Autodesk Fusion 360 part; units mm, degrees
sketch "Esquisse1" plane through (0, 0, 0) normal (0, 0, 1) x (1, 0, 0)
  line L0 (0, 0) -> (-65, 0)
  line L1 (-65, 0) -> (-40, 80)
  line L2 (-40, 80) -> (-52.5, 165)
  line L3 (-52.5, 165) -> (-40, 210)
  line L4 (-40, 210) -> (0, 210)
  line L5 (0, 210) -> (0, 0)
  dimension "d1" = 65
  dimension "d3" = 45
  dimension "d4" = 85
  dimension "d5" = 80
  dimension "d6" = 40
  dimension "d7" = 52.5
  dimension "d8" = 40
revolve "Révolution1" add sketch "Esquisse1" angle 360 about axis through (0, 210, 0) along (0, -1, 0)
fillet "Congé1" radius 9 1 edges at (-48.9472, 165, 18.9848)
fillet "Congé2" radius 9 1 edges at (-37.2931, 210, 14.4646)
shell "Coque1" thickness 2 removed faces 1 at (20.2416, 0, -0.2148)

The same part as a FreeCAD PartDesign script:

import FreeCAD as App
import Part
import Sketcher

V = App.Vector


def edges_at(feature, points):
    """Names of the edges that pass closest to the given points."""
    edges = feature.Shape.Edges
    near = lambda p: min(range(len(edges)), key=lambda i: edges[i].distToShape(Part.Vertex(*p))[0])
    return sorted({f"Edge{near(p) + 1}" for p in points})


def faces_at(feature, points):
    """Names of the faces that lie closest to the given points."""
    faces = feature.Shape.Faces
    near = lambda p: min(range(len(faces)), key=lambda i: faces[i].distToShape(Part.Vertex(*p))[0])
    return sorted({f"Face{near(p) + 1}" for p in points})

doc = App.newDocument("Part")
body = doc.addObject("PartDesign::Body", "Body")

sketch1 = body.newObject("Sketcher::SketchObject", "Sketch")
sketch1.AttachmentSupport = (doc.getObject("XY_Plane"), [""])
sketch1.MapMode = "FlatFace"
sketch1.addGeometry([
    Part.LineSegment(V(-65, 0, 0), V(0, 0, 0)),
    Part.LineSegment(V(0, 0, 0), V(0, 210, 0)),
    Part.LineSegment(V(0, 210, 0), V(-40, 210, 0)),
    Part.LineSegment(V(-40, 210, 0), V(-52, 165, 0)),
    Part.LineSegment(V(-52, 165, 0), V(-40, 80, 0)),
    Part.LineSegment(V(-40, 80, 0), V(-65, 0, 0)),
], False)
sketch1.addConstraint([
    Sketcher.Constraint("Coincident", 0, 2, 1, 1),
    Sketcher.Constraint("Coincident", 1, 2, 2, 1),
    Sketcher.Constraint("Coincident", 2, 2, 3, 1),
    Sketcher.Constraint("Coincident", 3, 2, 4, 1),
    Sketcher.Constraint("Coincident", 4, 2, 5, 1),
    Sketcher.Constraint("Coincident", 5, 2, 0, 1),
    Sketcher.Constraint("Horizontal", 0),
    Sketcher.Constraint("Vertical", 1),
    Sketcher.Constraint("Horizontal", 2),
    Sketcher.Constraint("Coincident", 0, 2, -1, 1),
    Sketcher.Constraint("Vertical", 2, 2, 4, 2),
    Sketcher.Constraint("DistanceX", 0, 1, 0, 2, 65.0),
    Sketcher.Constraint("DistanceX", 2, 2, 2, 1, 40.0),
    Sketcher.Constraint("DistanceY", -1, 1, 4, 2, 80.0),
    Sketcher.Constraint("DistanceY", 3, 2, 2, 2, 45.0),
    Sketcher.Constraint("DistanceY", 4, 2, 3, 2, 85.0),
    Sketcher.Constraint("DistanceX", 3, 2, -1, 1, 52.5),
])
revolution = body.newObject("PartDesign::Revolution", "Revolution")
revolution.Profile = sketch1
revolution.ReferenceAxis = (sketch1, ["V_Axis"])
revolution.Angle = 360
doc.recompute()

fillet = body.newObject("PartDesign::Fillet", "Fillet")
fillet.Base = (revolution, edges_at(revolution, [(-48.947, 165, 18.985)]))
fillet.Radius = 9
doc.recompute()

fillet2 = body.newObject("PartDesign::Fillet", "Fillet001")
fillet2.Base = (fillet, edges_at(fillet, [(-37.293, 210, 14.465)]))
fillet2.Radius = 9
doc.recompute()

thickness = body.newObject("PartDesign::Thickness", "Thickness")
thickness.Base = (fillet2, faces_at(fillet2, [(20.242, 0, -0.215)]))
thickness.Value = 2
thickness.Reversed = True
thickness.Join = "Intersection"

doc.recompute()
